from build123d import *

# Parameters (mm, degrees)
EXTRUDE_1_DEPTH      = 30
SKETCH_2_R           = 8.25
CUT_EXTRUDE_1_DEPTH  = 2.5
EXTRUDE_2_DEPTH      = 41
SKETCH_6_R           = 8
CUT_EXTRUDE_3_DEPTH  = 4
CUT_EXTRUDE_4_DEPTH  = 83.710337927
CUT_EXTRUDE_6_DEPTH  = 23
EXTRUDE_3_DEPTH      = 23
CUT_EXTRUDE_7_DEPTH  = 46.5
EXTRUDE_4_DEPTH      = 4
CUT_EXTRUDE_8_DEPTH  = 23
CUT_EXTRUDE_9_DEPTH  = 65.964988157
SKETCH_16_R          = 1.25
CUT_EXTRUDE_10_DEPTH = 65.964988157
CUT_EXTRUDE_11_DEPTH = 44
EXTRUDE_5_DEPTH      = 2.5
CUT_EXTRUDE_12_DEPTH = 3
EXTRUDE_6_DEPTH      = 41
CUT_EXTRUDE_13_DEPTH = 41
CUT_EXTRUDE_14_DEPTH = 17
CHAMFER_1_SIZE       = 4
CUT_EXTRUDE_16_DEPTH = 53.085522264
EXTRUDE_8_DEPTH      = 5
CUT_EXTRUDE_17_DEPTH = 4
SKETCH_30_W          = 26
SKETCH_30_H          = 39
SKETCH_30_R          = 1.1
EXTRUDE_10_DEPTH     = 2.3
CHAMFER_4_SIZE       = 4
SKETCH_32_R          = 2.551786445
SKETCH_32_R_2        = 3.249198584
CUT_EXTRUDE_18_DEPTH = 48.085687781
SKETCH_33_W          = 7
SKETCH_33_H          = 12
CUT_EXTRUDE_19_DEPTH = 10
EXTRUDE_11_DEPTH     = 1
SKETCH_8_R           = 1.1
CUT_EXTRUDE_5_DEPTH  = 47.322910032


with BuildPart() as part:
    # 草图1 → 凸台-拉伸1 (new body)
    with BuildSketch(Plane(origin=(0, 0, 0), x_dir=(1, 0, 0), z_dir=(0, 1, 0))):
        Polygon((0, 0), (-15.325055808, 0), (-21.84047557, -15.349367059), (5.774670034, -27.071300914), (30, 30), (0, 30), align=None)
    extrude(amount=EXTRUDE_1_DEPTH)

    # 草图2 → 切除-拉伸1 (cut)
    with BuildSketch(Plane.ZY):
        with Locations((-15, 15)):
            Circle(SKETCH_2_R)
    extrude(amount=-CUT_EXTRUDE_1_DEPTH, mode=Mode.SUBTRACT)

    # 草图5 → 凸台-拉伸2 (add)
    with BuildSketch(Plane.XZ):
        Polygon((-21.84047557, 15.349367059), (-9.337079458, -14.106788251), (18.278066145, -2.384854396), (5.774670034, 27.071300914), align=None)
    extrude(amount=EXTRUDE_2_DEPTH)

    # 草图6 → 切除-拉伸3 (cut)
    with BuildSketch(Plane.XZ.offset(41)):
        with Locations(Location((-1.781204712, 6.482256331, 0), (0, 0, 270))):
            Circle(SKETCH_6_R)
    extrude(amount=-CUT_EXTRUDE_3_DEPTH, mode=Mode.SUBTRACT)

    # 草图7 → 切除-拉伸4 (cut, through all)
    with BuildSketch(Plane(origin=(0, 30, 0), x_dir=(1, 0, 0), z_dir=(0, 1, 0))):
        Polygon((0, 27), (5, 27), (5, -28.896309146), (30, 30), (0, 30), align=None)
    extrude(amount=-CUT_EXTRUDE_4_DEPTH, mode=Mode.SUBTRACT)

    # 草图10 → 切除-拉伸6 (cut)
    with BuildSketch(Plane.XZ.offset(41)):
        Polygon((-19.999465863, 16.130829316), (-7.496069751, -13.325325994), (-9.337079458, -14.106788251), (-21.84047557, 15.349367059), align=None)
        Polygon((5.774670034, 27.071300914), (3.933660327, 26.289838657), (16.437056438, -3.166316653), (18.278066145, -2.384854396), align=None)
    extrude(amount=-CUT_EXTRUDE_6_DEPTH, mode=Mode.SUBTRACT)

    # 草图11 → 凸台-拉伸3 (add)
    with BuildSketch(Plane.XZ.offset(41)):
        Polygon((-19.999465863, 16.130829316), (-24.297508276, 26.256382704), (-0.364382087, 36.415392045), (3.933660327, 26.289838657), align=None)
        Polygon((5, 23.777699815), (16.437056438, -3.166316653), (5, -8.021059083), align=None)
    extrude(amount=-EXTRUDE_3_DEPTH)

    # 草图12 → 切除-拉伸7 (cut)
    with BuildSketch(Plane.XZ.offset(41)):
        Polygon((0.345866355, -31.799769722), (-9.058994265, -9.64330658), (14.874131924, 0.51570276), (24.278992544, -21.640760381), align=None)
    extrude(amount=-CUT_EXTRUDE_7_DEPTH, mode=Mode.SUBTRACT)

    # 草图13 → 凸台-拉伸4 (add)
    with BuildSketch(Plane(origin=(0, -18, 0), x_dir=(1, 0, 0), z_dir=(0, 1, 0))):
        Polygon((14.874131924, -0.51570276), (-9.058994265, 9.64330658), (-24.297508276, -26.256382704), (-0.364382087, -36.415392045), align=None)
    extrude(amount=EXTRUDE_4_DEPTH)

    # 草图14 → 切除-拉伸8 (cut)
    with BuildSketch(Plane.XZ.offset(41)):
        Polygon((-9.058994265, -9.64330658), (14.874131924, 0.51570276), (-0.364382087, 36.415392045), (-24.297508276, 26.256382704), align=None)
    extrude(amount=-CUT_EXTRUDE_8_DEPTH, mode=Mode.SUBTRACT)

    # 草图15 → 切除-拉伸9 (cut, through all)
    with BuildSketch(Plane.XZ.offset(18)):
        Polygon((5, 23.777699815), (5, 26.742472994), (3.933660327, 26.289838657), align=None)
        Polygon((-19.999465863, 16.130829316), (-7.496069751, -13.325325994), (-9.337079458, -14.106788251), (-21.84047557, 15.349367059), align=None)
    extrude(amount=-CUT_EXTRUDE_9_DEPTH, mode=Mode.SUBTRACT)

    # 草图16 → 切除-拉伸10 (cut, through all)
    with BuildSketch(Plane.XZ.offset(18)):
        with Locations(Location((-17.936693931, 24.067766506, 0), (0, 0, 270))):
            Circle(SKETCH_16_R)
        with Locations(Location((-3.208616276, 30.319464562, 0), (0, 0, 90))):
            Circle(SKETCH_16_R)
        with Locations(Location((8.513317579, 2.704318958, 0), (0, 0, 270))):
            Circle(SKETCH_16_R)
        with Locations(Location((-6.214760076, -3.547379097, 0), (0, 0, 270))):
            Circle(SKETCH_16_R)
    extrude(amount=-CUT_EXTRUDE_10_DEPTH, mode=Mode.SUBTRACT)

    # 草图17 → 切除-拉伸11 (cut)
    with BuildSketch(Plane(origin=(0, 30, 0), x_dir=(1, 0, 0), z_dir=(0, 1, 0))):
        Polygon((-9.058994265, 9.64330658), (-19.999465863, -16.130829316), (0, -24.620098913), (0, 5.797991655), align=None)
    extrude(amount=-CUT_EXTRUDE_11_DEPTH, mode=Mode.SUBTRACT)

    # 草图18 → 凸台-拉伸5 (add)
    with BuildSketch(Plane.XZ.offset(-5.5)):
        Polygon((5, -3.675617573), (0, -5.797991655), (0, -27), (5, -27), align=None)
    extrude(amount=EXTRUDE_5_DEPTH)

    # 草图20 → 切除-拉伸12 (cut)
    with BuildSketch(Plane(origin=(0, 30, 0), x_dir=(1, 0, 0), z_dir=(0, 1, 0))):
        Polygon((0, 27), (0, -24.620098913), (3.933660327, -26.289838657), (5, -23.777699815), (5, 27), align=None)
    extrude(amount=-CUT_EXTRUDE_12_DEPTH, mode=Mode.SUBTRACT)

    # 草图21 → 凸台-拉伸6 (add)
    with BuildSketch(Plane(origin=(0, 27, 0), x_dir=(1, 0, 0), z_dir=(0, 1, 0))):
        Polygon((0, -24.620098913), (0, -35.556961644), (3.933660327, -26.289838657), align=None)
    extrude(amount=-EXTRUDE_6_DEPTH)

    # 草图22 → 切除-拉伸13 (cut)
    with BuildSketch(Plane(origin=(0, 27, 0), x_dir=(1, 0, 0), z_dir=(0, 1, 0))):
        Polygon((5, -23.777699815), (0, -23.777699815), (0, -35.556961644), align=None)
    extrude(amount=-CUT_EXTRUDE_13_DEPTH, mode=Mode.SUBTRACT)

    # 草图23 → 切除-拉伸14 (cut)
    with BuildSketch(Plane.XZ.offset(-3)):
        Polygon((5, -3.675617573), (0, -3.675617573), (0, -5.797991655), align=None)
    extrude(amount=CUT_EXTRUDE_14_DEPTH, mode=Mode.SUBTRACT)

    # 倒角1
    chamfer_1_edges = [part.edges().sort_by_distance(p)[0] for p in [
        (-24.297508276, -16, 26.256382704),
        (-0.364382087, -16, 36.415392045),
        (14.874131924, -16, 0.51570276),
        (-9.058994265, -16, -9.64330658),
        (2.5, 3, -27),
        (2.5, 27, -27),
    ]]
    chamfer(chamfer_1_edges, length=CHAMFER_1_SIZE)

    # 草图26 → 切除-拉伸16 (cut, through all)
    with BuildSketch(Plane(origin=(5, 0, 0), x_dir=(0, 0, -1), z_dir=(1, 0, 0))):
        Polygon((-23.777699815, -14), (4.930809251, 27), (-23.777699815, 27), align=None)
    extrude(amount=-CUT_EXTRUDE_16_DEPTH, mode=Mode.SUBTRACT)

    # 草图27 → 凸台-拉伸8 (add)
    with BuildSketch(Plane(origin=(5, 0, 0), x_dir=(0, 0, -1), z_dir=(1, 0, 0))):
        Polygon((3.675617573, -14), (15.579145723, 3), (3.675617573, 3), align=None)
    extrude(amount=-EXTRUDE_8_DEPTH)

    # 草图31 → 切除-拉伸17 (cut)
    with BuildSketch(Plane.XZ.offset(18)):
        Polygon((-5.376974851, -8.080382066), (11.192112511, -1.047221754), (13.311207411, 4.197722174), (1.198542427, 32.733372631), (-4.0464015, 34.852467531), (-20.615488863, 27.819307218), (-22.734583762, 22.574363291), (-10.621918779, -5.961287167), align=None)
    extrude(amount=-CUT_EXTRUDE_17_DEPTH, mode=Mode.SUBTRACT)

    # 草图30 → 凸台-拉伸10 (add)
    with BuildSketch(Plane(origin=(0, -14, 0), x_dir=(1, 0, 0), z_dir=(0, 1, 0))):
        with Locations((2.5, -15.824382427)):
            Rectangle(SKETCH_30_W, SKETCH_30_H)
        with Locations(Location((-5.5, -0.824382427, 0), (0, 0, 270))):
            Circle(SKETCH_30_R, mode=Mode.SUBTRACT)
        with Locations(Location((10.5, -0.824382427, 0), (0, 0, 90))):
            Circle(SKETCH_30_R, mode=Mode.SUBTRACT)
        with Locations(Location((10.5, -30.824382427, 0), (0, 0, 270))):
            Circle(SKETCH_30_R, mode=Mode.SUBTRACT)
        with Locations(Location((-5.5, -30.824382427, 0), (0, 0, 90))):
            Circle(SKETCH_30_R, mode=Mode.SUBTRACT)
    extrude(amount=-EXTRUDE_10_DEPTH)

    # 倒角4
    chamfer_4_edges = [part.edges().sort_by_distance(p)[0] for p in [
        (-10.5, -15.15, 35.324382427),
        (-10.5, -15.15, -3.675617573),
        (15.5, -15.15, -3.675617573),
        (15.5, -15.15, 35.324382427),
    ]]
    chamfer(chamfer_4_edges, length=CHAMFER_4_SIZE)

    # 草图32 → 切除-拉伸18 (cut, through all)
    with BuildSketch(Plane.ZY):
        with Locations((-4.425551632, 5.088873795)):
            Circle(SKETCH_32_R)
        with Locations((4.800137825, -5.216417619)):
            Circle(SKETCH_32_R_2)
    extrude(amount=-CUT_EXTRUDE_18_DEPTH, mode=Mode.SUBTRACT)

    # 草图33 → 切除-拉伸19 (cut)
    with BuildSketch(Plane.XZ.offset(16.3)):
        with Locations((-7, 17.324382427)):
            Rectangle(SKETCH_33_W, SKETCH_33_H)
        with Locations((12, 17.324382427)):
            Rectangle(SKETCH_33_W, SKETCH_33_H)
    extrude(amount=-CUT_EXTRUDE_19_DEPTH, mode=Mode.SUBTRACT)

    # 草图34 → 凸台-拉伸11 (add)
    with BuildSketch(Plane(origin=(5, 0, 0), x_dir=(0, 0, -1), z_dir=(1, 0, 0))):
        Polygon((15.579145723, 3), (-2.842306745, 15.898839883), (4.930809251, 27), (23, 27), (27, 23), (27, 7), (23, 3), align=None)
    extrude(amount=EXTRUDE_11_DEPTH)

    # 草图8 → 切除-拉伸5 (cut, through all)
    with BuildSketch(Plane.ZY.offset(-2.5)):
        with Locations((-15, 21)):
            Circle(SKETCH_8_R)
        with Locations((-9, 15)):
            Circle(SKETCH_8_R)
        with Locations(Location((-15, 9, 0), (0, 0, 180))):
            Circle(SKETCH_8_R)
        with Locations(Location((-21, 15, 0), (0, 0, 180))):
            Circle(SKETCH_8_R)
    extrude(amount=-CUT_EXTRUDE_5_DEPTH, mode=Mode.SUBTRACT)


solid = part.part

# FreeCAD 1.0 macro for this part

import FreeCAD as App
import Part
import Sketcher

V = App.Vector
Q = App.Units.Quantity


def edges_at(feature, points):
    """Names of the edges that pass closest to the given points."""
    edges = feature.Shape.Edges
    near = lambda p: min(range(len(edges)), key=lambda i: edges[i].distToShape(Part.Vertex(*p))[0])
    return sorted({f"Edge{near(p) + 1}" for p in points})

doc = App.newDocument("Part")
params = doc.addObject("Spreadsheet::Sheet", "Params")
for row, (alias, value) in enumerate([
    ("sketch1_width", "30 mm"),
    ("sketch1_length", "30 mm"),
    ("sketch1_length2", "62 mm"),
    ("pad1_length", "30 mm"),
    ("sketch2_diameter", "16.5 mm"),
    ("pocket1_length", "2.5 mm"),
    ("sketch3_length", "32 mm"),
    ("sketch3_length2", "30 mm"),
    ("pad2_length", "41 mm"),
    ("sketch4_diameter", "16 mm"),
    ("pocket2_length", "4 mm"),
    ("sketch5_width", "5 mm"),
    ("sketch5_width2", "30 mm"),
    ("sketch5_height", "3 mm"),
    ("sketch6_length", "32 mm"),
    ("sketch6_length2", "2 mm"),
    ("pocket4_length", "23 mm"),
    ("sketch7_length", "11 mm"),
    ("sketch7_length2", "26 mm"),
    ("pad3_length", "23 mm"),
    ("sketch8_length", "26 mm"),
    ("pocket5_length", "46.5 mm"),
    ("sketch9_length", "26 mm"),
    ("sketch9_length2", "39 mm"),
    ("pad4_length", "4 mm"),
    ("sketch10_length", "26 mm"),
    ("sketch10_length2", "39 mm"),
    ("pocket6_length", "23 mm"),
    ("sketch11_length", "32 mm"),
    ("sketch11_length2", "2 mm"),
    ("sketch12_diameter", "2.5 mm"),
    ("sketch13_length", "28 mm"),
    ("pocket9_length", "44 mm"),
    ("sketch14_width", "5 mm"),
    ("pad5_length", "2.5 mm"),
    ("sketch15_width", "5 mm"),
    ("pocket10_length", "3 mm"),
    ("pad6_length", "41 mm"),
    ("sketch17_width", "5 mm"),
    ("pocket11_length", "41 mm"),
    ("sketch18_width", "5 mm"),
    ("pocket12_length", "17 mm"),
    ("chamfer_size", "4 mm"),
    ("sketch19_width", "41 mm"),
    ("sketch20_width", "17 mm"),
    ("pad7_length", "5 mm"),
    ("sketch21_length", "18 mm"),
    ("sketch21_length2", "31 mm"),
    ("pocket14_length", "4 mm"),
    ("sketch22_diameter", "2.2 mm"),
    ("sketch22_width", "26 mm"),
    ("sketch22_height", "39 mm"),
    ("pad8_length", "2.3 mm"),
    ("chamfer2_size", "4 mm"),
    ("sketch24_width", "7 mm"),
    ("sketch24_height", "12 mm"),
    ("pocket16_length", "10 mm"),
    ("sketch25_width", "16 mm"),
    ("pad9_length", "1 mm"),
    ("sketch26_diameter", "2.2 mm"),
], start=1):
    params.set(f"A{row}", alias)
    params.set(f"B{row}", "=" + value)
    params.setAlias(f"B{row}", alias)

body = doc.addObject("PartDesign::Body", "Body")

sketch1 = doc.addObject("Sketcher::SketchObject", "Sketch")
body.addObject(sketch1)
sketch1.AttachmentSupport = (doc.XZ_Plane, [""])
sketch1.MapMode = "FlatFace"
sketch1.addGeometry([
    Part.LineSegment(V(0, 0, 0), V(-15, 0, 0)),
    Part.LineSegment(V(-15, 0, 0), V(-22, 15, 0)),
    Part.LineSegment(V(-22, 15, 0), V(6, 27, 0)),
    Part.LineSegment(V(6, 27, 0), V(30, -30, 0)),
    Part.LineSegment(V(30, -30, 0), V(0, -30, 0)),
    Part.LineSegment(V(0, -30, 0), V(0, 0, 0)),
], False)
sketch1.addConstraint([
    Sketcher.Constraint("Coincident", 0, 2, 1, 1),
    Sketcher.Constraint("Coincident", 1, 2, 2, 1),
    Sketcher.Constraint("Coincident", 2, 2, 3, 1),
    Sketcher.Constraint("Coincident", 3, 2, 4, 1),
    Sketcher.Constraint("Coincident", 4, 2, 5, 1),
    Sketcher.Constraint("Coincident", 5, 2, 0, 1),
    Sketcher.Constraint("Horizontal", 0),
    Sketcher.Constraint("Horizontal", 4),
    Sketcher.Constraint("Vertical", 5),
    Sketcher.Constraint("Coincident", 5, 2, -1, 1),
    Sketcher.Constraint("Perpendicular", 1, 2),
    Sketcher.Constraint("Perpendicular", 2, 3),
    Sketcher.Constraint("Equal", 4, 5),
    Sketcher.Constraint("DistanceX", 4, 2, 4, 1, Q("30 mm")),
    Sketcher.Constraint("Angle", 1, Q("113 deg")),
    Sketcher.Constraint("Distance", 2, Q("30 mm")),
    Sketcher.Constraint("Distance", 3, Q("62 mm")),
])
sketch1.setExpression("Constraints[13]", "Params.sketch1_width")
sketch1.setExpression("Constraints[15]", "Params.sketch1_length")
sketch1.setExpression("Constraints[16]", "Params.sketch1_length2")
pad1 = doc.addObject("PartDesign::Pad", "Pad")
body.addObject(pad1)
pad1.Profile = sketch1
pad1.setExpression("Length", "Params.pad1_length")
pad1.Reversed = True

sketch2 = doc.addObject("Sketcher::SketchObject", "Sketch001")
body.addObject(sketch2)
sketch2.AttachmentSupport = (doc.YZ_Plane, [""])
sketch2.MapMode = "FlatFace"
sketch2.addGeometry(Part.Circle(V(15, -15, 0), V(0, 0, 1), 8), False)
sketch2.addConstraint([
    Sketcher.Constraint("Diameter", 0, Q("16.5 mm")),
    Sketcher.Constraint("DistanceX", -1, 1, 0, 3, Q("15 mm")),
    Sketcher.Constraint("DistanceY", 0, 3, -1, 1, Q("15 mm")),
])
sketch2.setExpression("Constraints[0]", "Params.sketch2_diameter")
pocket1 = doc.addObject("PartDesign::Pocket", "Pocket")
body.addObject(pocket1)
pocket1.Profile = sketch2
pocket1.setExpression("Length", "Params.pocket1_length")
pocket1.Reversed = True

sketch3 = doc.addObject("Sketcher::SketchObject", "Sketch002")
body.addObject(sketch3)
sketch3.AttachmentSupport = (doc.XZ_Plane, [""])
sketch3.MapMode = "FlatFace"
sketch3.addGeometry([
    Part.LineSegment(V(-22, 15, 0), V(-9, -14, 0)),
    Part.LineSegment(V(-9, -14, 0), V(18, -2, 0)),
    Part.LineSegment(V(18, -2, 0), V(6, 27, 0)),
    Part.LineSegment(V(6, 27, 0), V(-22, 15, 0)),
], False)
sketch3.addConstraint([
    Sketcher.Constraint("Coincident", 0, 2, 1, 1),
    Sketcher.Constraint("Coincident", 1, 2, 2, 1),
    Sketcher.Constraint("Coincident", 2, 2, 3, 1),
    Sketcher.Constraint("Coincident", 3, 2, 0, 1),
    Sketcher.Constraint("Perpendicular", 0, 1),
    Sketcher.Constraint("Perpendicular", 1, 2),
    Sketcher.Constraint("Perpendicular", 2, 3),
    Sketcher.Constraint("Angle", 0, Q("-67 deg")),
    Sketcher.Constraint("Distance", 0, Q("32 mm")),
    Sketcher.Constraint("Distance", 1, Q("30 mm")),
    Sketcher.Constraint("DistanceY", -1, 1, 2, 2, Q("27.071301 mm")),
    Sketcher.Constraint("DistanceX", 0, 2, -1, 1, Q("9.337079 mm")),
])
sketch3.setExpression("Constraints[8]", "Params.sketch3_length")
sketch3.setExpression("Constraints[9]", "Params.sketch3_length2")
pad2 = doc.addObject("PartDesign::Pad", "Pad001")
body.addObject(pad2)
pad2.Profile = sketch3
pad2.setExpression("Length", "Params.pad2_length")

sketch4 = doc.addObject("Sketcher::SketchObject", "Sketch003")
body.addObject(sketch4)
sketch4.AttachmentSupport = (doc.XZ_Plane, [""])
sketch4.MapMode = "FlatFace"
sketch4.AttachmentOffset = App.Placement(V(0, 0, 41), App.Rotation())
sketch4.addGeometry(Part.Circle(V(-2, 6, 0), V(0, 0, 1), 8), False)
sketch4.addConstraint([
    Sketcher.Constraint("Diameter", 0, Q("16 mm")),
    Sketcher.Constraint("DistanceX", 0, 3, -1, 1, Q("1.781205 mm")),
    Sketcher.Constraint("DistanceY", -1, 1, 0, 3, Q("6.482256 mm")),
])
sketch4.setExpression("Constraints[0]", "Params.sketch4_diameter")
pocket2 = doc.addObject("PartDesign::Pocket", "Pocket001")
body.addObject(pocket2)
pocket2.Profile = sketch4
pocket2.setExpression("Length", "Params.pocket2_length")

sketch5 = doc.addObject("Sketcher::SketchObject", "Sketch004")
body.addObject(sketch5)
sketch5.AttachmentSupport = (doc.XZ_Plane, [""])
sketch5.MapMode = "FlatFace"
sketch5.AttachmentOffset = App.Placement(V(0, 0, -30), App.Rotation())
sketch5.addGeometry([
    Part.LineSegment(V(0, -27, 0), V(5, -27, 0)),
    Part.LineSegment(V(5, -27, 0), V(5, 28.9, 0)),
    Part.LineSegment(V(5, 28.9, 0), V(30, -30, 0)),
    Part.LineSegment(V(30, -30, 0), V(0, -30, 0)),
    Part.LineSegment(V(0, -30, 0), V(0, -27, 0)),
], False)
sketch5.addConstraint([
    Sketcher.Constraint("Coincident", 0, 2, 1, 1),
    Sketcher.Constraint("Coincident", 1, 2, 2, 1),
    Sketcher.Constraint("Coincident", 2, 2, 3, 1),
    Sketcher.Constraint("Coincident", 3, 2, 4, 1),
    Sketcher.Constraint("Coincident", 4, 2, 0, 1),
    Sketcher.Constraint("Horizontal", 0),
    Sketcher.Constraint("Vertical", 1),
    Sketcher.Constraint("Horizontal", 3),
    Sketcher.Constraint("Vertical", 4),
    Sketcher.Constraint("PointOnObject", 3, 2, -2),
    Sketcher.Constraint("DistanceX", 0, 1, 0, 2, Q("5 mm")),
    Sketcher.Constraint("DistanceX", 3, 2, 3, 1, Q("30 mm")),
    Sketcher.Constraint("DistanceY", 4, 1, 4, 2, Q("3 mm")),
    Sketcher.Constraint("Angle", 2, Q("-67 deg")),
    Sketcher.Constraint("DistanceY", 0, 2, -1, 1, Q("27 mm")),
])
sketch5.setExpression("Constraints[10]", "Params.sketch5_width")
sketch5.setExpression("Constraints[11]", "Params.sketch5_width2")
sketch5.setExpression("Constraints[12]", "Params.sketch5_height")
pocket3 = doc.addObject("PartDesign::Pocket", "Pocket002")
body.addObject(pocket3)
pocket3.Profile = sketch5
pocket3.Type = "ThroughAll"
pocket3.Reversed = True

sketch6 = doc.addObject("Sketcher::SketchObject", "Sketch005")
body.addObject(sketch6)
sketch6.AttachmentSupport = (doc.XZ_Plane, [""])
sketch6.MapMode = "FlatFace"
sketch6.AttachmentOffset = App.Placement(V(0, 0, 41), App.Rotation())
sketch6.addGeometry([
    Part.LineSegment(V(-7.5, -13.3, 0), V(-20, 16.1, 0)),
    Part.LineSegment(V(-20, 16.1, 0), V(-21.8, 15.3, 0)),
    Part.LineSegment(V(-21.8, 15.3, 0), V(-9.3, -14.1, 0)),
    Part.LineSegment(V(-9.3, -14.1, 0), V(-7.5, -13.3, 0)),
    Part.LineSegment(V(5.8, 27.1, 0), V(3.9, 26.3, 0)),
    Part.LineSegment(V(3.9, 26.3, 0), V(16.4, -3.2, 0)),
    Part.LineSegment(V(16.4, -3.2, 0), V(18.3, -2.4, 0)),
    Part.LineSegment(V(18.3, -2.4, 0), V(5.8, 27.1, 0)),
], False)
sketch6.addConstraint([
    Sketcher.Constraint("Coincident", 0, 2, 1, 1),
    Sketcher.Constraint("Coincident", 1, 2, 2, 1),
    Sketcher.Constraint("Coincident", 2, 2, 3, 1),
    Sketcher.Constraint("Coincident", 3, 2, 0, 1),
    Sketcher.Constraint("Coincident", 4, 2, 5, 1),
    Sketcher.Constraint("Coincident", 5, 2, 6, 1),
    Sketcher.Constraint("Coincident", 6, 2, 7, 1),
    Sketcher.Constraint("Coincident", 7, 2, 4, 1),
    Sketcher.Constraint("Perpendicular", 0, 1),
    Sketcher.Constraint("Perpendicular", 1, 2),
    Sketcher.Constraint("Perpendicular", 2, 3),
    Sketcher.Constraint("Parallel", 3, 4),
    Sketcher.Constraint("Perpendicular", 4, 5),
    Sketcher.Constraint("Perpendicular", 5, 6),
    Sketcher.Constraint("Perpendicular", 6, 7),
    Sketcher.Constraint("Equal", 3, 4),
    Sketcher.Constraint("Equal", 2, 5),
    Sketcher.Constraint("Angle", 0, Q("113 deg")),
    Sketcher.Constraint("Distance", 0, Q("32 mm")),
    Sketcher.Constraint("Distance", 1, Q("2 mm")),
    Sketcher.Constraint("DistanceY", -1, 1, 7, 2, Q("27.071301 mm")),
    Sketcher.Constraint("DistanceY", -1, 1, 0, 2, Q("16.130829 mm")),
    Sketcher.Constraint("DistanceX", 2, 2, -1, 1, Q("9.337079 mm")),
    Sketcher.Constraint("DistanceX", -1, 1, 4, 2, Q("3.93366 mm")),
])
sketch6.setExpression("Constraints[18]", "Params.sketch6_length")
sketch6.setExpression("Constraints[19]", "Params.sketch6_length2")
pocket4 = doc.addObject("PartDesign::Pocket", "Pocket003")
body.addObject(pocket4)
pocket4.Profile = sketch6
pocket4.setExpression("Length", "Params.pocket4_length")

sketch7 = doc.addObject("Sketcher::SketchObject", "Sketch006")
body.addObject(sketch7)
sketch7.AttachmentSupport = (doc.XZ_Plane, [""])
sketch7.MapMode = "FlatFace"
sketch7.AttachmentOffset = App.Placement(V(0, 0, 41), App.Rotation())
sketch7.addGeometry([
    Part.LineSegment(V(-24, 26, 0), V(-20, 16, 0)),
    Part.LineSegment(V(-20, 16, 0), V(4, 26, 0)),
    Part.LineSegment(V(4, 26, 0), V(0, 36, 0)),
    Part.LineSegment(V(0, 36, 0), V(-24, 26, 0)),
    Part.LineSegment(V(16, -3, 0), V(5, 24, 0)),
    Part.LineSegment(V(5, 24, 0), V(5, -8, 0)),
    Part.LineSegment(V(5, -8, 0), V(16, -3, 0)),
], False)
sketch7.addConstraint([
    Sketcher.Constraint("Coincident", 0, 2, 1, 1),
    Sketcher.Constraint("Coincident", 1, 2, 2, 1),
    Sketcher.Constraint("Coincident", 2, 2, 3, 1),
    Sketcher.Constraint("Coincident", 3, 2, 0, 1),
    Sketcher.Constraint("Coincident", 4, 2, 5, 1),
    Sketcher.Constraint("Coincident", 5, 2, 6, 1),
    Sketcher.Constraint("Coincident", 6, 2, 4, 1),
    Sketcher.Constraint("Vertical", 5),
    Sketcher.Constraint("Perpendicular", 0, 1),
    Sketcher.Constraint("Perpendicular", 1, 2),
    Sketcher.Constraint("Perpendicular", 2, 3),
    Sketcher.Constraint("Perpendicular", 3, 4),
    Sketcher.Constraint("Perpendicular", 4, 6),
    Sketcher.Constraint("Angle", 0, Q("-67 deg")),
    Sketcher.Constraint("Distance", 0, Q("11 mm")),
    Sketcher.Constraint("Distance", 1, Q("26 mm")),
    Sketcher.Constraint("DistanceX", -1, 1, 4, 2, Q("5 mm")),
    Sketcher.Constraint("DistanceY", 5, 2, 5, 1, Q("31.798759 mm")),
    Sketcher.Constraint("DistanceY", -1, 1, 4, 2, Q("23.7777 mm")),
    Sketcher.Constraint("DistanceY", -1, 1, 0, 2, Q("16.130829 mm")),
    Sketcher.Constraint("DistanceX", -1, 1, 1, 2, Q("3.93366 mm")),
])
sketch7.setExpression("Constraints[14]", "Params.sketch7_length")
sketch7.setExpression("Constraints[15]", "Params.sketch7_length2")
pad3 = doc.addObject("PartDesign::Pad", "Pad002")
body.addObject(pad3)
pad3.Profile = sketch7
pad3.setExpression("Length", "Params.pad3_length")
pad3.Reversed = True

sketch8 = doc.addObject("Sketcher::SketchObject", "Sketch007")
body.addObject(sketch8)
sketch8.AttachmentSupport = (doc.XZ_Plane, [""])
sketch8.MapMode = "FlatFace"
sketch8.AttachmentOffset = App.Placement(V(0, 0, 41), App.Rotation())
sketch8.addGeometry([
    Part.LineSegment(V(-9, -10, 0), V(0, -32, 0)),
    Part.LineSegment(V(0, -32, 0), V(24, -22, 0)),
    Part.LineSegment(V(24, -22, 0), V(15, 1, 0)),
    Part.LineSegment(V(15, 1, 0), V(-9, -10, 0)),
], False)
sketch8.addConstraint([
    Sketcher.Constraint("Coincident", 0, 2, 1, 1),
    Sketcher.Constraint("Coincident", 1, 2, 2, 1),
    Sketcher.Constraint("Coincident", 2, 2, 3, 1),
    Sketcher.Constraint("Coincident", 3, 2, 0, 1),
    Sketcher.Constraint("Perpendicular", 0, 1),
    Sketcher.Constraint("Perpendicular", 1, 2),
    Sketcher.Constraint("Perpendicular", 2, 3),
    Sketcher.Constraint("Angle", 0, Q("-67 deg")),
    Sketcher.Constraint("Distance", 1, Q("26 mm")),
    Sketcher.Constraint("DistanceY", 0, 2, -1, 1, Q("31.79977 mm")),
    Sketcher.Constraint("DistanceX", -1, 1, 2, 2, Q("14.874132 mm")),
    Sketcher.Constraint("DistanceX", 2, 2, 1, 2, Q("9.404861 mm")),
])
sketch8.setExpression("Constraints[8]", "Params.sketch8_length")
pocket5 = doc.addObject("PartDesign::Pocket", "Pocket004")
body.addObject(pocket5)
pocket5.Profile = sketch8
pocket5.setExpression("Length", "Params.pocket5_length")

sketch9 = doc.addObject("Sketcher::SketchObject", "Sketch008")
body.addObject(sketch9)
sketch9.AttachmentSupport = (doc.XZ_Plane, [""])
sketch9.MapMode = "FlatFace"
sketch9.AttachmentOffset = App.Placement(V(0, 0, 18), App.Rotation())
sketch9.addGeometry([
    Part.LineSegment(V(15, 1, 0), V(-9, -10, 0)),
    Part.LineSegment(V(-9, -10, 0), V(-24, 26, 0)),
    Part.LineSegment(V(-24, 26, 0), V(0, 36, 0)),
    Part.LineSegment(V(0, 36, 0), V(15, 1, 0)),
], False)
sketch9.addConstraint([
    Sketcher.Constraint("Coincident", 0, 2, 1, 1),
    Sketcher.Constraint("Coincident", 1, 2, 2, 1),
    Sketcher.Constraint("Coincident", 2, 2, 3, 1),
    Sketcher.Constraint("Coincident", 3, 2, 0, 1),
    Sketcher.Constraint("Perpendicular", 0, 1),
    Sketcher.Constraint("Perpendicular", 1, 2),
    Sketcher.Constraint("Perpendicular", 2, 3),
    Sketcher.Constraint("Angle", 0, Q("-157 deg")),
    Sketcher.Constraint("Distance", 0, Q("26 mm")),
    Sketcher.Constraint("Distance", 1, Q("39 mm")),
    Sketcher.Constraint("DistanceX", 1, 2, -1, 1, Q("24.297508 mm")),
    Sketcher.Constraint("DistanceY", 0, 2, -1, 1, Q("9.643307 mm")),
])
sketch9.setExpression("Constraints[8]", "Params.sketch9_length")
sketch9.setExpression("Constraints[9]", "Params.sketch9_length2")
pad4 = doc.addObject("PartDesign::Pad", "Pad003")
body.addObject(pad4)
pad4.Profile = sketch9
pad4.setExpression("Length", "Params.pad4_length")
pad4.Reversed = True

sketch10 = doc.addObject("Sketcher::SketchObject", "Sketch009")
body.addObject(sketch10)
sketch10.AttachmentSupport = (doc.XZ_Plane, [""])
sketch10.MapMode = "FlatFace"
sketch10.AttachmentOffset = App.Placement(V(0, 0, 41), App.Rotation())
sketch10.addGeometry([
    Part.LineSegment(V(-9, -10, 0), V(15, 1, 0)),
    Part.LineSegment(V(15, 1, 0), V(0, 36, 0)),
    Part.LineSegment(V(0, 36, 0), V(-24, 26, 0)),
    Part.LineSegment(V(-24, 26, 0), V(-9, -10, 0)),
], False)
sketch10.addConstraint([
    Sketcher.Constraint("Coincident", 0, 2, 1, 1),
    Sketcher.Constraint("Coincident", 1, 2, 2, 1),
    Sketcher.Constraint("Coincident", 2, 2, 3, 1),
    Sketcher.Constraint("Coincident", 3, 2, 0, 1),
    Sketcher.Constraint("Perpendicular", 0, 1),
    Sketcher.Constraint("Perpendicular", 1, 2),
    Sketcher.Constraint("Perpendicular", 2, 3),
    Sketcher.Constraint("Angle", 0, Q("23 deg")),
    Sketcher.Constraint("Distance", 0, Q("26 mm")),
    Sketcher.Constraint("Distance", 1, Q("39 mm")),
    Sketcher.Constraint("DistanceX", -1, 1, 0, 2, Q("14.874132 mm")),
    Sketcher.Constraint("DistanceY", -1, 1, 0, 2, Q("0.515703 mm")),
])
sketch10.setExpression("Constraints[8]", "Params.sketch10_length")
sketch10.setExpression("Constraints[9]", "Params.sketch10_length2")
pocket6 = doc.addObject("PartDesign::Pocket", "Pocket005")
body.addObject(pocket6)
pocket6.Profile = sketch10
pocket6.setExpression("Length", "Params.pocket6_length")

sketch11 = doc.addObject("Sketcher::SketchObject", "Sketch010")
body.addObject(sketch11)
sketch11.AttachmentSupport = (doc.XZ_Plane, [""])
sketch11.MapMode = "FlatFace"
sketch11.AttachmentOffset = App.Placement(V(0, 0, 18), App.Rotation())
sketch11.addGeometry([
    Part.LineSegment(V(5, 23.8, 0), V(5, 26.7, 0)),
    Part.LineSegment(V(5, 26.7, 0), V(3.9, 26.3, 0)),
    Part.LineSegment(V(3.9, 26.3, 0), V(5, 23.8, 0)),
    Part.LineSegment(V(-7.5, -13.3, 0), V(-20, 16.1, 0)),
    Part.LineSegment(V(-20, 16.1, 0), V(-21.8, 15.3, 0)),
    Part.LineSegment(V(-21.8, 15.3, 0), V(-9.3, -14.1, 0)),
    Part.LineSegment(V(-9.3, -14.1, 0), V(-7.5, -13.3, 0)),
], False)
sketch11.addConstraint([
    Sketcher.Constraint("Coincident", 0, 2, 1, 1),
    Sketcher.Constraint("Coincident", 1, 2, 2, 1),
    Sketcher.Constraint("Coincident", 2, 2, 0, 1),
    Sketcher.Constraint("Coincident", 3, 2, 4, 1),
    Sketcher.Constraint("Coincident", 4, 2, 5, 1),
    Sketcher.Constraint("Coincident", 5, 2, 6, 1),
    Sketcher.Constraint("Coincident", 6, 2, 3, 1),
    Sketcher.Constraint("Vertical", 0),
    Sketcher.Constraint("Perpendicular", 1, 2),
    Sketcher.Constraint("Parallel", 2, 3),
    Sketcher.Constraint("Perpendicular", 3, 4),
    Sketcher.Constraint("Perpendicular", 4, 5),
    Sketcher.Constraint("Perpendicular", 5, 6),
    Sketcher.Constraint("Angle", 1, Q("-157 deg")),
    Sketcher.Constraint("Distance", 3, Q("32 mm")),
    Sketcher.Constraint("Distance", 4, Q("2 mm")),
    Sketcher.Constraint("DistanceX", -1, 1, 0, 2, Q("5 mm")),
    Sketcher.Constraint("DistanceY", -1, 1, 2, 2, Q("23.7777 mm")),
    Sketcher.Constraint("Distance", 1, Q("1.158429 mm")),
    Sketcher.Constraint("DistanceY", -1, 1, 3, 2, Q("16.130829 mm")),
    Sketcher.Constraint("DistanceX", 5, 2, -1, 1, Q("9.337079 mm")),
])
sketch11.setExpression("Constraints[14]", "Params.sketch11_length")
sketch11.setExpression("Constraints[15]", "Params.sketch11_length2")
pocket7 = doc.addObject("PartDesign::Pocket", "Pocket006")
body.addObject(pocket7)
pocket7.Profile = sketch11
pocket7.Type = "ThroughAll"

sketch12 = doc.addObject("Sketcher::SketchObject", "Sketch011")
body.addObject(sketch12)
sketch12.AttachmentSupport = (doc.XZ_Plane, [""])
sketch12.MapMode = "FlatFace"
sketch12.AttachmentOffset = App.Placement(V(0, 0, 18), App.Rotation())
sketch12.addGeometry([
    Part.Circle(V(-17.9, 24.1, 0), V(0, 0, 1), 1.2),
    Part.Circle(V(-3.2, 30.3, 0), V(0, 0, 1), 1.2),
    Part.Circle(V(8.5, 2.7, 0), V(0, 0, 1), 1.2),
    Part.Circle(V(-6.2, -3.5, 0), V(0, 0, 1), 1.2),
], False)
sketch12.addConstraint([
    Sketcher.Constraint("Equal", 0, 1),
    Sketcher.Constraint("Equal", 1, 2),
    Sketcher.Constraint("Equal", 2, 3),
    Sketcher.Constraint("Diameter", 0, Q("2.5 mm")),
    Sketcher.Constraint("DistanceY", 0, 3, 1, 3, Q("6.251698 mm")),
    Sketcher.Constraint("DistanceY", 3, 3, 2, 3, Q("6.251698 mm")),
    Sketcher.Constraint("DistanceY", -1, 1, 2, 3, Q("2.704319 mm")),
    Sketcher.Constraint("DistanceX", 3, 3, -1, 1, Q("6.21476 mm")),
    Sketcher.Constraint("DistanceX", 0, 3, 2, 3, Q("26.450012 mm")),
    Sketcher.Constraint("DistanceX", 0, 3, -1, 1, Q("17.936694 mm")),
    Sketcher.Constraint("DistanceY", -1, 1, 0, 3, Q("24.067767 mm")),
    Sketcher.Constraint("DistanceX", 1, 3, -1, 1, Q("3.208616 mm")),
])
sketch12.setExpression("Constraints[3]", "Params.sketch12_diameter")
pocket8 = doc.addObject("PartDesign::Pocket", "Pocket007")
body.addObject(pocket8)
pocket8.Profile = sketch12
pocket8.Type = "ThroughAll"

sketch13 = doc.addObject("Sketcher::SketchObject", "Sketch012")
body.addObject(sketch13)
sketch13.AttachmentSupport = (doc.XZ_Plane, [""])
sketch13.MapMode = "FlatFace"
sketch13.AttachmentOffset = App.Placement(V(0, 0, -30), App.Rotation())
sketch13.addGeometry([
    Part.LineSegment(V(-9, -10, 0), V(-20, 16, 0)),
    Part.LineSegment(V(-20, 16, 0), V(0, 25, 0)),
    Part.LineSegment(V(0, 25, 0), V(0, -6, 0)),
    Part.LineSegment(V(0, -6, 0), V(-9, -10, 0)),
], False)
sketch13.addConstraint([
    Sketcher.Constraint("Coincident", 0, 2, 1, 1),
    Sketcher.Constraint("Coincident", 1, 2, 2, 1),
    Sketcher.Constraint("Coincident", 2, 2, 3, 1),
    Sketcher.Constraint("Coincident", 3, 2, 0, 1),
    Sketcher.Constraint("Vertical", 2),
    Sketcher.Constraint("PointOnObject", 1, 2, -2),
    Sketcher.Constraint("Perpendicular", 0, 1),
    Sketcher.Constraint("Parallel", 1, 3),
    Sketcher.Constraint("Angle", 0, Q("113 deg")),
    Sketcher.Constraint("Distance", 0, Q("28 mm")),
    Sketcher.Constraint("DistanceY", -1, 1, 1, 2, Q("24.620099 mm")),
    Sketcher.Constraint("DistanceY", -1, 1, 0, 2, Q("16.130829 mm")),
])
sketch13.setExpression("Constraints[9]", "Params.sketch13_length")
pocket9 = doc.addObject("PartDesign::Pocket", "Pocket008")
body.addObject(pocket9)
pocket9.Profile = sketch13
pocket9.setExpression("Length", "Params.pocket9_length")
pocket9.Reversed = True

sketch14 = doc.addObject("Sketcher::SketchObject", "Sketch013")
body.addObject(sketch14)
sketch14.AttachmentSupport = (doc.XZ_Plane, [""])
sketch14.MapMode = "FlatFace"
sketch14.AttachmentOffset = App.Placement(V(0, 0, -5.5), App.Rotation())
sketch14.addGeometry([
    Part.LineSegment(V(5, -4, 0), V(0, -6, 0)),
    Part.LineSegment(V(0, -6, 0), V(0, -27, 0)),
    Part.LineSegment(V(0, -27, 0), V(5, -27, 0)),
    Part.LineSegment(V(5, -27, 0), V(5, -4, 0)),
], False)
sketch14.addConstraint([
    Sketcher.Constraint("Coincident", 0, 2, 1, 1),
    Sketcher.Constraint("Coincident", 1, 2, 2, 1),
    Sketcher.Constraint("Coincident", 2, 2, 3, 1),
    Sketcher.Constraint("Coincident", 3, 2, 0, 1),
    Sketcher.Constraint("Vertical", 1),
    Sketcher.Constraint("Horizontal", 2),
    Sketcher.Constraint("Vertical", 3),
    Sketcher.Constraint("PointOnObject", 0, 2, -2),
    Sketcher.Constraint("DistanceX", 2, 1, 2, 2, Q("5 mm")),
    Sketcher.Constraint("Angle", 0, Q("-157 deg")),
    Sketcher.Constraint("DistanceY", 1, 2, -1, 1, Q("27 mm")),
    Sketcher.Constraint("DistanceY", 1, 2, 1, 1, Q("21.202008 mm")),
])
sketch14.setExpression("Constraints[8]", "Params.sketch14_width")
pad5 = doc.addObject("PartDesign::Pad", "Pad004")
body.addObject(pad5)
pad5.Profile = sketch14
pad5.setExpression("Length", "Params.pad5_length")

sketch15 = doc.addObject("Sketcher::SketchObject", "Sketch014")
body.addObject(sketch15)
sketch15.AttachmentSupport = (doc.XZ_Plane, [""])
sketch15.MapMode = "FlatFace"
sketch15.AttachmentOffset = App.Placement(V(0, 0, -30), App.Rotation())
sketch15.addGeometry([
    Part.LineSegment(V(0, -27, 0), V(0, 24.6, 0)),
    Part.LineSegment(V(0, 24.6, 0), V(3.9, 26.3, 0)),
    Part.LineSegment(V(3.9, 26.3, 0), V(5, 23.8, 0)),
    Part.LineSegment(V(5, 23.8, 0), V(5, -27, 0)),
    Part.LineSegment(V(5, -27, 0), V(0, -27, 0)),
], False)
sketch15.addConstraint([
    Sketcher.Constraint("Coincident", 0, 2, 1, 1),
    Sketcher.Constraint("Coincident", 1, 2, 2, 1),
    Sketcher.Constraint("Coincident", 2, 2, 3, 1),
    Sketcher.Constraint("Coincident", 3, 2, 4, 1),
    Sketcher.Constraint("Coincident", 4, 2, 0, 1),
    Sketcher.Constraint("Vertical", 0),
    Sketcher.Constraint("Vertical", 3),
    Sketcher.Constraint("Horizontal", 4),
    Sketcher.Constraint("PointOnObject", 0, 2, -2),
    Sketcher.Constraint("Perpendicular", 1, 2),
    Sketcher.Constraint("DistanceX", 4, 2, 4, 1, Q("5 mm")),
    Sketcher.Constraint("Angle", 1, Q("23 deg")),
    Sketcher.Constraint("DistanceY", 3, 2, -1, 1, Q("27 mm")),
    Sketcher.Constraint("DistanceY", 0, 1, 0, 2, Q("51.620099 mm")),
    Sketcher.Constraint("DistanceY", 3, 2, 3, 1, Q("50.7777 mm")),
])
sketch15.setExpression("Constraints[10]", "Params.sketch15_width")
pocket10 = doc.addObject("PartDesign::Pocket", "Pocket009")
body.addObject(pocket10)
pocket10.Profile = sketch15
pocket10.setExpression("Length", "Params.pocket10_length")
pocket10.Reversed = True

sketch16 = doc.addObject("Sketcher::SketchObject", "Sketch015")
body.addObject(sketch16)
sketch16.AttachmentSupport = (doc.XZ_Plane, [""])
sketch16.MapMode = "FlatFace"
sketch16.AttachmentOffset = App.Placement(V(0, 0, -27), App.Rotation())
sketch16.addGeometry([
    Part.LineSegment(V(0, 24.6, 0), V(0, 35.6, 0)),
    Part.LineSegment(V(0, 35.6, 0), V(3.9, 26.3, 0)),
    Part.LineSegment(V(3.9, 26.3, 0), V(0, 24.6, 0)),
], False)
sketch16.addConstraint([
    Sketcher.Constraint("Coincident", 0, 2, 1, 1),
    Sketcher.Constraint("Coincident", 1, 2, 2, 1),
    Sketcher.Constraint("Coincident", 2, 2, 0, 1),
    Sketcher.Constraint("Vertical", 0),
    Sketcher.Constraint("PointOnObject", 0, 2, -2),
    Sketcher.Constraint("Perpendicular", 1, 2),
    Sketcher.Constraint("Angle", 1, Q("-67 deg")),
    Sketcher.Constraint("DistanceY", -1, 1, 2, 2, Q("24.620099 mm")),
    Sketcher.Constraint("DistanceY", 0, 1, 0, 2, Q("10.936863 mm")),
])
pad6 = doc.addObject("PartDesign::Pad", "Pad005")
body.addObject(pad6)
pad6.Profile = sketch16
pad6.setExpression("Length", "Params.pad6_length")

sketch17 = doc.addObject("Sketcher::SketchObject", "Sketch016")
body.addObject(sketch17)
sketch17.AttachmentSupport = (doc.XZ_Plane, [""])
sketch17.MapMode = "FlatFace"
sketch17.AttachmentOffset = App.Placement(V(0, 0, -27), App.Rotation())
sketch17.addGeometry([
    Part.LineSegment(V(5, 24, 0), V(0, 24, 0)),
    Part.LineSegment(V(0, 24, 0), V(0, 36, 0)),
    Part.LineSegment(V(0, 36, 0), V(5, 24, 0)),
], False)
sketch17.addConstraint([
    Sketcher.Constraint("Coincident", 0, 2, 1, 1),
    Sketcher.Constraint("Coincident", 1, 2, 2, 1),
    Sketcher.Constraint("Coincident", 2, 2, 0, 1),
    Sketcher.Constraint("Horizontal", 0),
    Sketcher.Constraint("Vertical", 1),
    Sketcher.Constraint("PointOnObject", 0, 2, -2),
    Sketcher.Constraint("DistanceX", 0, 2, 0, 1, Q("5 mm")),
    Sketcher.Constraint("Angle", 2, Q("-67 deg")),
    Sketcher.Constraint("DistanceY", -1, 1, 0, 2, Q("23.7777 mm")),
])
sketch17.setExpression("Constraints[6]", "Params.sketch17_width")
pocket11 = doc.addObject("PartDesign::Pocket", "Pocket010")
body.addObject(pocket11)
pocket11.Profile = sketch17
pocket11.setExpression("Length", "Params.pocket11_length")
pocket11.Reversed = True

sketch18 = doc.addObject("Sketcher::SketchObject", "Sketch017")
body.addObject(sketch18)
sketch18.AttachmentSupport = (doc.XZ_Plane, [""])
sketch18.MapMode = "FlatFace"
sketch18.AttachmentOffset = App.Placement(V(0, 0, -3), App.Rotation())
sketch18.addGeometry([
    Part.LineSegment(V(5, -3.7, 0), V(0, -3.7, 0)),
    Part.LineSegment(V(0, -3.7, 0), V(0, -5.8, 0)),
    Part.LineSegment(V(0, -5.8, 0), V(5, -3.7, 0)),
], False)
sketch18.addConstraint([
    Sketcher.Constraint("Coincident", 0, 2, 1, 1),
    Sketcher.Constraint("Coincident", 1, 2, 2, 1),
    Sketcher.Constraint("Coincident", 2, 2, 0, 1),
    Sketcher.Constraint("Horizontal", 0),
    Sketcher.Constraint("Vertical", 1),
    Sketcher.Constraint("PointOnObject", 0, 2, -2),
    Sketcher.Constraint("DistanceX", 0, 2, 0, 1, Q("5 mm")),
    Sketcher.Constraint("Angle", 2, Q("23 deg")),
    Sketcher.Constraint("DistanceY", 1, 2, -1, 1, Q("5.797992 mm")),
])
sketch18.setExpression("Constraints[6]", "Params.sketch18_width")
pocket12 = doc.addObject("PartDesign::Pocket", "Pocket011")
body.addObject(pocket12)
pocket12.Profile = sketch18
pocket12.setExpression("Length", "Params.pocket12_length")
pocket12.Reversed = True
doc.recompute()

chamfer = doc.addObject("PartDesign::Chamfer", "Chamfer")
body.addObject(chamfer)
chamfer.Base = (pocket12, edges_at(pocket12, [
    (-24.298, -16, 26.256),
    (-0.364, -16, 36.415),
    (14.874, -16, 0.516),
    (-9.059, -16, -9.643),
    (2.5, 3, -27),
    (2.5, 27, -27),
]))
chamfer.setExpression("Size", "Params.chamfer_size")

sketch19 = doc.addObject("Sketcher::SketchObject", "Sketch018")
body.addObject(sketch19)
sketch19.AttachmentSupport = (doc.YZ_Plane, [""])
sketch19.MapMode = "FlatFace"
sketch19.AttachmentOffset = App.Placement(V(0, 0, 5), App.Rotation())
sketch19.addGeometry([
    Part.LineSegment(V(-14, 24, 0), V(27, -5, 0)),
    Part.LineSegment(V(27, -5, 0), V(27, 24, 0)),
    Part.LineSegment(V(27, 24, 0), V(-14, 24, 0)),
], False)
sketch19.addConstraint([
    Sketcher.Constraint("Coincident", 0, 2, 1, 1),
    Sketcher.Constraint("Coincident", 1, 2, 2, 1),
    Sketcher.Constraint("Coincident", 2, 2, 0, 1),
    Sketcher.Constraint("Vertical", 1),
    Sketcher.Constraint("Horizontal", 2),
    Sketcher.Constraint("DistanceX", 2, 2, 2, 1, Q("41 mm")),
    Sketcher.Constraint("Angle", 0, Q("-35 deg")),
    Sketcher.Constraint("DistanceX", -1, 1, 0, 2, Q("27 mm")),
    Sketcher.Constraint("DistanceY", -1, 1, 1, 2, Q("23.7777 mm")),
])
sketch19.setExpression("Constraints[5]", "Params.sketch19_width")
pocket13 = doc.addObject("PartDesign::Pocket", "Pocket012")
body.addObject(pocket13)
pocket13.Profile = sketch19
pocket13.Type = "ThroughAll"

sketch20 = doc.addObject("Sketcher::SketchObject", "Sketch019")
body.addObject(sketch20)
sketch20.AttachmentSupport = (doc.YZ_Plane, [""])
sketch20.MapMode = "FlatFace"
sketch20.AttachmentOffset = App.Placement(V(0, 0, 5), App.Rotation())
sketch20.addGeometry([
    Part.LineSegment(V(-14, -4, 0), V(3, -16, 0)),
    Part.LineSegment(V(3, -16, 0), V(3, -4, 0)),
    Part.LineSegment(V(3, -4, 0), V(-14, -4, 0)),
], False)
sketch20.addConstraint([
    Sketcher.Constraint("Coincident", 0, 2, 1, 1),
    Sketcher.Constraint("Coincident", 1, 2, 2, 1),
    Sketcher.Constraint("Coincident", 2, 2, 0, 1),
    Sketcher.Constraint("Vertical", 1),
    Sketcher.Constraint("Horizontal", 2),
    Sketcher.Constraint("DistanceX", 2, 2, 2, 1, Q("17 mm")),
    Sketcher.Constraint("Angle", 0, Q("-35 deg")),
    Sketcher.Constraint("DistanceX", -1, 1, 0, 2, Q("3 mm")),
    Sketcher.Constraint("DistanceY", 0, 2, -1, 1, Q("15.579146 mm")),
])
sketch20.setExpression("Constraints[5]", "Params.sketch20_width")
pad7 = doc.addObject("PartDesign::Pad", "Pad006")
body.addObject(pad7)
pad7.Profile = sketch20
pad7.setExpression("Length", "Params.pad7_length")
pad7.Reversed = True

sketch21 = doc.addObject("Sketcher::SketchObject", "Sketch020")
body.addObject(sketch21)
sketch21.AttachmentSupport = (doc.XZ_Plane, [""])
sketch21.MapMode = "FlatFace"
sketch21.AttachmentOffset = App.Placement(V(0, 0, 18), App.Rotation())
sketch21.addGeometry([
    Part.LineSegment(V(-5, -8, 0), V(11, -1, 0)),
    Part.LineSegment(V(11, -1, 0), V(13, 4, 0)),
    Part.LineSegment(V(13, 4, 0), V(1, 33, 0)),
    Part.LineSegment(V(1, 33, 0), V(-4, 35, 0)),
    Part.LineSegment(V(-4, 35, 0), V(-21, 28, 0)),
    Part.LineSegment(V(-21, 28, 0), V(-23, 23, 0)),
    Part.LineSegment(V(-23, 23, 0), V(-11, -6, 0)),
    Part.LineSegment(V(-11, -6, 0), V(-5, -8, 0)),
], False)
sketch21.addConstraint([
    Sketcher.Constraint("Coincident", 0, 2, 1, 1),
    Sketcher.Constraint("Coincident", 1, 2, 2, 1),
    Sketcher.Constraint("Coincident", 2, 2, 3, 1),
    Sketcher.Constraint("Coincident", 3, 2, 4, 1),
    Sketcher.Constraint("Coincident", 4, 2, 5, 1),
    Sketcher.Constraint("Coincident", 5, 2, 6, 1),
    Sketcher.Constraint("Coincident", 6, 2, 7, 1),
    Sketcher.Constraint("Coincident", 7, 2, 0, 1),
    Sketcher.Constraint("Perpendicular", 0, 2),
    Sketcher.Constraint("Perpendicular", 1, 3),
    Sketcher.Constraint("Perpendicular", 2, 4),
    Sketcher.Constraint("Perpendicular", 3, 5),
    Sketcher.Constraint("Perpendicular", 4, 6),
    Sketcher.Constraint("Perpendicular", 5, 7),
    Sketcher.Constraint("Equal", 1, 3),
    Sketcher.Constraint("Equal", 0, 4),
    Sketcher.Constraint("Equal", 3, 5),
    Sketcher.Constraint("Angle", 0, Q("23 deg")),
    Sketcher.Constraint("Angle", 1, Q("68 deg")),
    Sketcher.Constraint("Distance", 0, Q("18 mm")),
    Sketcher.Constraint("Distance", 2, Q("31 mm")),
    Sketcher.Constraint("DistanceX", 3, 2, -1, 1, Q("4.046401 mm")),
    Sketcher.Constraint("DistanceX", 4, 2, 0, 2, Q("31.807601 mm")),
    Sketcher.Constraint("DistanceY", 0, 2, -1, 1, Q("1.047222 mm")),
])
sketch21.setExpression("Constraints[19]", "Params.sketch21_length")
sketch21.setExpression("Constraints[20]", "Params.sketch21_length2")
pocket14 = doc.addObject("PartDesign::Pocket", "Pocket013")
body.addObject(pocket14)
pocket14.Profile = sketch21
pocket14.setExpression("Length", "Params.pocket14_length")

sketch22 = doc.addObject("Sketcher::SketchObject", "Sketch021")
body.addObject(sketch22)
sketch22.AttachmentSupport = (doc.XZ_Plane, [""])
sketch22.MapMode = "FlatFace"
sketch22.AttachmentOffset = App.Placement(V(0, 0, 14), App.Rotation())
sketch22.addGeometry([
    Part.LineSegment(V(-10.5, -3.7, 0), V(-10.5, 35.3, 0)),
    Part.LineSegment(V(-10.5, 35.3, 0), V(15.5, 35.3, 0)),
    Part.LineSegment(V(15.5, 35.3, 0), V(15.5, -3.7, 0)),
    Part.LineSegment(V(15.5, -3.7, 0), V(-10.5, -3.7, 0)),
    Part.Circle(V(-5.5, 30.8, 0), V(0, 0, 1), 1.1),
    Part.Circle(V(10.5, 30.8, 0), V(0, 0, 1), 1.1),
    Part.Circle(V(-5.5, 0.8, 0), V(0, 0, 1), 1.1),
    Part.Circle(V(10.5, 0.8, 0), V(0, 0, 1), 1.1),
], False)
sketch22.addConstraint([
    Sketcher.Constraint("Coincident", 0, 2, 1, 1),
    Sketcher.Constraint("Coincident", 1, 2, 2, 1),
    Sketcher.Constraint("Coincident", 2, 2, 3, 1),
    Sketcher.Constraint("Coincident", 3, 2, 0, 1),
    Sketcher.Constraint("Vertical", 0),
    Sketcher.Constraint("Horizontal", 1),
    Sketcher.Constraint("Vertical", 2),
    Sketcher.Constraint("Horizontal", 3),
    Sketcher.Constraint("Equal", 4, 5),
    Sketcher.Constraint("Equal", 5, 6),
    Sketcher.Constraint("Equal", 6, 7),
    Sketcher.Constraint("Horizontal", 4, 3, 5, 3),
    Sketcher.Constraint("Horizontal", 6, 3, 7, 3),
    Sketcher.Constraint("Vertical", 4, 3, 6, 3),
    Sketcher.Constraint("Vertical", 5, 3, 7, 3),
    Sketcher.Constraint("Diameter", 4, Q("2.2 mm")),
    Sketcher.Constraint("DistanceX", 1, 1, 1, 2, Q("26 mm")),
    Sketcher.Constraint("DistanceY", 0, 1, 0, 2, Q("39 mm")),
    Sketcher.Constraint("DistanceX", 4, 3, 5, 3, Q("16 mm")),
    Sketcher.Constraint("DistanceY", 6, 3, 4, 3, Q("30 mm")),
    Sketcher.Constraint("DistanceX", 0, 2, 4, 3, Q("5 mm")),
    Sketcher.Constraint("DistanceX", 4, 3, -1, 1, Q("5.5 mm")),
    Sketcher.Constraint("DistanceY", 4, 3, 0, 2, Q("4.5 mm")),
    Sketcher.Constraint("DistanceY", -1, 1, 4, 3, Q("30.824382 mm")),
])
sketch22.setExpression("Constraints[15]", "Params.sketch22_diameter")
sketch22.setExpression("Constraints[16]", "Params.sketch22_width")
sketch22.setExpression("Constraints[17]", "Params.sketch22_height")
pad8 = doc.addObject("PartDesign::Pad", "Pad007")
body.addObject(pad8)
pad8.Profile = sketch22
pad8.setExpression("Length", "Params.pad8_length")
doc.recompute()

chamfer2 = doc.addObject("PartDesign::Chamfer", "Chamfer001")
body.addObject(chamfer2)
chamfer2.Base = (pad8, edges_at(pad8, [
    (-10.5, -15.15, 35.324),
    (-10.5, -15.15, -3.676),
    (15.5, -15.15, -3.676),
    (15.5, -15.15, 35.324),
]))
chamfer2.setExpression("Size", "Params.chamfer2_size")

sketch23 = doc.addObject("Sketcher::SketchObject", "Sketch022")
body.addObject(sketch23)
sketch23.AttachmentSupport = (doc.YZ_Plane, [""])
sketch23.MapMode = "FlatFace"
sketch23.addGeometry([
    Part.Circle(V(5.1, -4.4, 0), V(0, 0, 1), 2.6),
    Part.Circle(V(-5.2, 4.8, 0), V(0, 0, 1), 3.2),
], False)
sketch23.addConstraint([
    Sketcher.Constraint("Diameter", 0, Q("5.103573 mm")),
    Sketcher.Constraint("Diameter", 1, Q("6.498397 mm")),
    Sketcher.Constraint("DistanceY", 0, 3, -1, 1, Q("4.425552 mm")),
    Sketcher.Constraint("DistanceX", 1, 3, 0, 3, Q("10.305291 mm")),
    Sketcher.Constraint("DistanceY", 0, 3, 1, 3, Q("9.225689 mm")),
    Sketcher.Constraint("DistanceX", -1, 1, 0, 3, Q("5.088874 mm")),
])
pocket15 = doc.addObject("PartDesign::Pocket", "Pocket014")
body.addObject(pocket15)
pocket15.Profile = sketch23
pocket15.Type = "ThroughAll"
pocket15.Reversed = True

sketch24 = doc.addObject("Sketcher::SketchObject", "Sketch023")
body.addObject(sketch24)
sketch24.AttachmentSupport = (doc.XZ_Plane, [""])
sketch24.MapMode = "FlatFace"
sketch24.AttachmentOffset = App.Placement(V(0, 0, 16.3), App.Rotation())
sketch24.addGeometry([
    Part.LineSegment(V(-10, 23, 0), V(-10, 11, 0)),
    Part.LineSegment(V(-10, 11, 0), V(-4, 11, 0)),
    Part.LineSegment(V(-4, 11, 0), V(-4, 23, 0)),
    Part.LineSegment(V(-4, 23, 0), V(-10, 23, 0)),
    Part.LineSegment(V(8, 23, 0), V(8, 11, 0)),
    Part.LineSegment(V(8, 11, 0), V(16, 11, 0)),
    Part.LineSegment(V(16, 11, 0), V(16, 23, 0)),
    Part.LineSegment(V(16, 23, 0), V(8, 23, 0)),
], False)
sketch24.addConstraint([
    Sketcher.Constraint("Coincident", 0, 2, 1, 1),
    Sketcher.Constraint("Coincident", 1, 2, 2, 1),
    Sketcher.Constraint("Coincident", 2, 2, 3, 1),
    Sketcher.Constraint("Coincident", 3, 2, 0, 1),
    Sketcher.Constraint("Coincident", 4, 2, 5, 1),
    Sketcher.Constraint("Coincident", 5, 2, 6, 1),
    Sketcher.Constraint("Coincident", 6, 2, 7, 1),
    Sketcher.Constraint("Coincident", 7, 2, 4, 1),
    Sketcher.Constraint("Vertical", 0),
    Sketcher.Constraint("Horizontal", 1),
    Sketcher.Constraint("Vertical", 2),
    Sketcher.Constraint("Horizontal", 3),
    Sketcher.Constraint("Vertical", 4),
    Sketcher.Constraint("Horizontal", 5),
    Sketcher.Constraint("Vertical", 6),
    Sketcher.Constraint("Horizontal", 7),
    Sketcher.Constraint("Horizontal", 1, 2, 4, 2),
    Sketcher.Constraint("Horizontal", 3, 2, 6, 2),
    Sketcher.Constraint("Equal", 3, 5),
    Sketcher.Constraint("DistanceX", 1, 1, 1, 2, Q("7 mm")),
    Sketcher.Constraint("DistanceY", 0, 2, 0, 1, Q("12 mm")),
    Sketcher.Constraint("DistanceX", 1, 2, 4, 2, Q("12 mm")),
    Sketcher.Constraint("DistanceX", 0, 2, -1, 1, Q("10.5 mm")),
    Sketcher.Constraint("DistanceY", -1, 1, 0, 2, Q("11.324382 mm")),
])
sketch24.setExpression("Constraints[19]", "Params.sketch24_width")
sketch24.setExpression("Constraints[20]", "Params.sketch24_height")
pocket16 = doc.addObject("PartDesign::Pocket", "Pocket015")
body.addObject(pocket16)
pocket16.Profile = sketch24
pocket16.setExpression("Length", "Params.pocket16_length")

sketch25 = doc.addObject("Sketcher::SketchObject", "Sketch024")
body.addObject(sketch25)
sketch25.AttachmentSupport = (doc.YZ_Plane, [""])
sketch25.MapMode = "FlatFace"
sketch25.AttachmentOffset = App.Placement(V(0, 0, 5), App.Rotation())
sketch25.addGeometry([
    Part.LineSegment(V(16, 3, 0), V(3, -16, 0)),
    Part.LineSegment(V(3, -16, 0), V(3, -23, 0)),
    Part.LineSegment(V(3, -23, 0), V(7, -27, 0)),
    Part.LineSegment(V(7, -27, 0), V(23, -27, 0)),
    Part.LineSegment(V(23, -27, 0), V(27, -23, 0)),
    Part.LineSegment(V(27, -23, 0), V(27, -5, 0)),
    Part.LineSegment(V(27, -5, 0), V(16, 3, 0)),
], False)
sketch25.addConstraint([
    Sketcher.Constraint("Coincident", 0, 2, 1, 1),
    Sketcher.Constraint("Coincident", 1, 2, 2, 1),
    Sketcher.Constraint("Coincident", 2, 2, 3, 1),
    Sketcher.Constraint("Coincident", 3, 2, 4, 1),
    Sketcher.Constraint("Coincident", 4, 2, 5, 1),
    Sketcher.Constraint("Coincident", 5, 2, 6, 1),
    Sketcher.Constraint("Coincident", 6, 2, 0, 1),
    Sketcher.Constraint("Vertical", 1),
    Sketcher.Constraint("Horizontal", 3),
    Sketcher.Constraint("Vertical", 5),
    Sketcher.Constraint("Perpendicular", 2, 4),
    Sketcher.Constraint("Perpendicular", 0, 6),
    Sketcher.Constraint("Horizontal", 1, 2, 4, 2),
    Sketcher.Constraint("Equal", 2, 4),
    Sketcher.Constraint("DistanceX", 3, 1, 3, 2, Q("16 mm")),
    Sketcher.Constraint("Angle", 0, Q("-125 deg")),
    Sketcher.Constraint("DistanceX", -1, 1, 0, 2, Q("3 mm")),
    Sketcher.Constraint("DistanceY", 1, 2, -1, 1, Q("23 mm")),
    Sketcher.Constraint("DistanceX", -1, 1, 2, 2, Q("7 mm")),
    Sketcher.Constraint("DistanceY", 5, 1, 5, 2, Q("18.069191 mm")),
    Sketcher.Constraint("Distance", 0, Q("22.488441 mm")),
])
sketch25.setExpression("Constraints[14]", "Params.sketch25_width")
pad9 = doc.addObject("PartDesign::Pad", "Pad008")
body.addObject(pad9)
pad9.Profile = sketch25
pad9.setExpression("Length", "Params.pad9_length")

sketch26 = doc.addObject("Sketcher::SketchObject", "Sketch025")
body.addObject(sketch26)
sketch26.AttachmentSupport = (doc.YZ_Plane, [""])
sketch26.MapMode = "FlatFace"
sketch26.AttachmentOffset = App.Placement(V(0, 0, 2.5), App.Rotation())
sketch26.addGeometry([
    Part.Circle(V(21, -15, 0), V(0, 0, 1), 1.1),
    Part.Circle(V(15, -9, 0), V(0, 0, 1), 1.1),
    Part.Circle(V(9, -15, 0), V(0, 0, 1), 1.1),
    Part.Circle(V(15, -21, 0), V(0, 0, 1), 1.1),
], False)
sketch26.addConstraint([
    Sketcher.Constraint("Equal", 0, 1),
    Sketcher.Constraint("Equal", 1, 2),
    Sketcher.Constraint("Equal", 2, 3),
    Sketcher.Constraint("Horizontal", 0, 3, 2, 3),
    Sketcher.Constraint("Vertical", 1, 3, 3, 3),
    Sketcher.Constraint("Diameter", 0, Q("2.2 mm")),
    Sketcher.Constraint("DistanceX", -1, 1, 0, 3, Q("21 mm")),
    Sketcher.Constraint("DistanceY", 0, 3, -1, 1, Q("15 mm")),
    Sketcher.Constraint("DistanceX", -1, 1, 1, 3, Q("15 mm")),
    Sketcher.Constraint("DistanceY", 1, 3, -1, 1, Q("9 mm")),
    Sketcher.Constraint("DistanceX", -1, 1, 2, 3, Q("9 mm")),
    Sketcher.Constraint("DistanceY", 3, 3, -1, 1, Q("21 mm")),
])
sketch26.setExpression("Constraints[5]", "Params.sketch26_diameter")
pocket17 = doc.addObject("PartDesign::Pocket", "Pocket016")
body.addObject(pocket17)
pocket17.Profile = sketch26
pocket17.Type = "ThroughAll"
pocket17.Reversed = True

doc.recompute()
